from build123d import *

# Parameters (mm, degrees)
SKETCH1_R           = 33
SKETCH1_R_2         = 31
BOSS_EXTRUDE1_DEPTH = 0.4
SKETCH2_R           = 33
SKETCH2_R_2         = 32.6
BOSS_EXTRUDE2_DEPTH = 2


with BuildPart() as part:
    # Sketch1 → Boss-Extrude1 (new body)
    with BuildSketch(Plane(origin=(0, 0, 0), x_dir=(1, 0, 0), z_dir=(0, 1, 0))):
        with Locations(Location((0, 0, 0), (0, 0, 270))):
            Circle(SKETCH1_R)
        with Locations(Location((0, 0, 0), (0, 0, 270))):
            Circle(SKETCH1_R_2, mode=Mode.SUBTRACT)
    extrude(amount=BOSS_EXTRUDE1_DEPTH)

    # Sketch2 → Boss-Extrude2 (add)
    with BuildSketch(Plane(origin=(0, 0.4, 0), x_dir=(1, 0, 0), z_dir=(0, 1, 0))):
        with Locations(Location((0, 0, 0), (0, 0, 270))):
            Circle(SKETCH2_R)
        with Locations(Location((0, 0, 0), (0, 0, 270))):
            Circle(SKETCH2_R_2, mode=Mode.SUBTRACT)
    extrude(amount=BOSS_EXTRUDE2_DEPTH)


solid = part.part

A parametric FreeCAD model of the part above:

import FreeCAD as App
import Part
import Sketcher
from FreeCAD import Vector

doc = App.newDocument("Part")
params = doc.addObject("Spreadsheet::Sheet", "Params")
for row, (alias, value) in enumerate([
    ("sketch1_diameter", "66 mm"),
    ("sketch1_diameter2", "62 mm"),
    ("pad1_length", "0.4 mm"),
    ("sketch2_diameter", "66 mm"),
    ("sketch2_diameter2", "65.2 mm"),
    ("pad2_length", "2 mm"),
], start=1):
    params.set(f"A{row}", alias)
    params.set(f"B{row}", "=" + value)
    params.setAlias(f"B{row}", alias)

body = doc.addObject("PartDesign::Body", "Body")

# Sketch on XZ plane
sketch1 = doc.addObject("Sketcher::SketchObject", "Sketch")
body.addObject(sketch1)
sketch1.AttachmentSupport = (doc.XZ_Plane, [""])
sketch1.MapMode = "FlatFace"
sketch1.addGeometry(Part.Circle(Vector(0, 0, 0), Vector(0, 0, 1), 33), False)
sketch1.addGeometry(Part.Circle(Vector(0, 0, 0), Vector(0, 0, 1), 31), False)
sketch1.addConstraint(Sketcher.Constraint("Coincident", 0, 3, -1, 1))
sketch1.addConstraint(Sketcher.Constraint("Coincident", 1, 3, -1, 1))
sketch1.addConstraint(Sketcher.Constraint("Diameter", 0, 66.0))
sketch1.addConstraint(Sketcher.Constraint("Diameter", 1, 62.0))
sketch1.setExpression("Constraints[2]", "Params.sketch1_diameter")
sketch1.setExpression("Constraints[3]", "Params.sketch1_diameter2")
pad1 = doc.addObject("PartDesign::Pad", "Pad")
body.addObject(pad1)
pad1.Profile = sketch1
pad1.setExpression("Length", "Params.pad1_length")
pad1.Reversed = True

# Sketch on XZ plane
sketch2 = doc.addObject("Sketcher::SketchObject", "Sketch001")
body.addObject(sketch2)
sketch2.AttachmentSupport = (doc.XZ_Plane, [""])
sketch2.MapMode = "FlatFace"
sketch2.AttachmentOffset = App.Placement(Vector(0, 0, -0.4), App.Rotation())
sketch2.addGeometry(Part.Circle(Vector(0, 0, 0), Vector(0, 0, 1), 33), False)
sketch2.addGeometry(Part.Circle(Vector(0, 0, 0), Vector(0, 0, 1), 33), False)
sketch2.addConstraint(Sketcher.Constraint("Coincident", 0, 3, -1, 1))
sketch2.addConstraint(Sketcher.Constraint("Coincident", 1, 3, -1, 1))
sketch2.addConstraint(Sketcher.Constraint("Diameter", 0, 66.0))
sketch2.addConstraint(Sketcher.Constraint("Diameter", 1, 65.2))
sketch2.setExpression("Constraints[2]", "Params.sketch2_diameter")
sketch2.setExpression("Constraints[3]", "Params.sketch2_diameter2")
pad2 = doc.addObject("PartDesign::Pad", "Pad001")
body.addObject(pad2)
pad2.Profile = sketch2
pad2.setExpression("Length", "Params.pad2_length")
pad2.Reversed = True

doc.recompute()
